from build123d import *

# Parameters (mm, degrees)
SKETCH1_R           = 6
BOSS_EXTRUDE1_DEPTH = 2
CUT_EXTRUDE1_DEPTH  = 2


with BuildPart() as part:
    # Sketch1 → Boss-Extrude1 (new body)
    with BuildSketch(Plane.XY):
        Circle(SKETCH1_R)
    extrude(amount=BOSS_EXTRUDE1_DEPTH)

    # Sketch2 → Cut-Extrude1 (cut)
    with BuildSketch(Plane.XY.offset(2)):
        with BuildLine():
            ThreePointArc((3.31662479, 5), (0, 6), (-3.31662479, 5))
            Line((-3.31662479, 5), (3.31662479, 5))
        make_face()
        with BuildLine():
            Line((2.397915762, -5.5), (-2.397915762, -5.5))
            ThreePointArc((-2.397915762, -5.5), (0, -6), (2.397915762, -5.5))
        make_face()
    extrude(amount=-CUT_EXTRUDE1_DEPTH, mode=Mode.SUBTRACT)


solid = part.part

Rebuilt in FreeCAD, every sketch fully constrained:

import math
import FreeCAD as App
import Part
import Sketcher
from FreeCAD import Vector

doc = App.newDocument("Part")
params = doc.addObject("Spreadsheet::Sheet", "Params")
for row, (alias, value) in enumerate([
    ("sketch1_diameter", "12 mm"),
    ("pad1_length", "2 mm"),
    ("sketch2_radius", "6 mm"),
    ("pocket1_length", "2 mm"),
], start=1):
    params.set(f"A{row}", alias)
    params.set(f"B{row}", "=" + value)
    params.setAlias(f"B{row}", alias)

body = doc.addObject("PartDesign::Body", "Body")

sketch1 = body.newObject("Sketcher::SketchObject", "Sketch")
sketch1.AttachmentSupport = (doc.getObject("XY_Plane"), [""])
sketch1.MapMode = "FlatFace"
sketch1.addGeometry(Part.Circle(Vector(0, 0, 0), Vector(0, 0, 1), 6), False)
sketch1.addConstraint(Sketcher.Constraint("Coincident", 0, 3, -1, 1))
sketch1.addConstraint(Sketcher.Constraint("Diameter", 0, 12.0))
sketch1.setExpression("Constraints[1]", "Params.sketch1_diameter")
pad1 = body.newObject("PartDesign::Pad", "Pad")
pad1.Profile = sketch1
pad1.setExpression("Length", "Params.pad1_length")

sketch2 = body.newObject("Sketcher::SketchObject", "Sketch001")
sketch2.AttachmentSupport = (doc.getObject("XY_Plane"), [""])
sketch2.MapMode = "FlatFace"
sketch2.AttachmentOffset = App.Placement(Vector(0, 0, 2), App.Rotation())
sketch2.addGeometry(Part.ArcOfCircle(Part.Circle(Vector(0, 0, 0), Vector(0, 0, 1), 6), math.radians(56), math.radians(124)), False)
sketch2.addGeometry(Part.LineSegment(Vector(-3.3, 5, 0), Vector(3.3, 5, 0)), False)
sketch2.addGeometry(Part.LineSegment(Vector(2.4, -5.5, 0), Vector(-2.4, -5.5, 0)), False)
sketch2.addGeometry(Part.ArcOfCircle(Part.Circle(Vector(0, 0, 0), Vector(0, 0, 1), 6), math.radians(-114), math.radians(-66)), False)
sketch2.addConstraint(Sketcher.Constraint("Coincident", 0, 1, 1, 2))
sketch2.addConstraint(Sketcher.Constraint("Coincident", 1, 1, 0, 2))
sketch2.addConstraint(Sketcher.Constraint("Coincident", 2, 1, 3, 2))
sketch2.addConstraint(Sketcher.Constraint("Coincident", 3, 1, 2, 2))
sketch2.addConstraint(Sketcher.Constraint("Horizontal", 1))
sketch2.addConstraint(Sketcher.Constraint("Horizontal", 2))
sketch2.addConstraint(Sketcher.Constraint("Coincident", 0, 3, -1, 1))
sketch2.addConstraint(Sketcher.Constraint("Coincident", 3, 3, -1, 1))
sketch2.addConstraint(Sketcher.Constraint("Equal", 0, 3))
sketch2.addConstraint(Sketcher.Constraint("Radius", 0, 6.0))
sketch2.addConstraint(Sketcher.Constraint("DistanceY", -1, 1, 0, 1, 5.0))
sketch2.addConstraint(Sketcher.Constraint("DistanceY", 2, 1, -1, 1, 5.5))
sketch2.setExpression("Constraints[9]", "Params.sketch2_radius")
pocket1 = body.newObject("PartDesign::Pocket", "Pocket")
pocket1.Profile = sketch2
pocket1.setExpression("Length", "Params.pocket1_length")

doc.recompute()
